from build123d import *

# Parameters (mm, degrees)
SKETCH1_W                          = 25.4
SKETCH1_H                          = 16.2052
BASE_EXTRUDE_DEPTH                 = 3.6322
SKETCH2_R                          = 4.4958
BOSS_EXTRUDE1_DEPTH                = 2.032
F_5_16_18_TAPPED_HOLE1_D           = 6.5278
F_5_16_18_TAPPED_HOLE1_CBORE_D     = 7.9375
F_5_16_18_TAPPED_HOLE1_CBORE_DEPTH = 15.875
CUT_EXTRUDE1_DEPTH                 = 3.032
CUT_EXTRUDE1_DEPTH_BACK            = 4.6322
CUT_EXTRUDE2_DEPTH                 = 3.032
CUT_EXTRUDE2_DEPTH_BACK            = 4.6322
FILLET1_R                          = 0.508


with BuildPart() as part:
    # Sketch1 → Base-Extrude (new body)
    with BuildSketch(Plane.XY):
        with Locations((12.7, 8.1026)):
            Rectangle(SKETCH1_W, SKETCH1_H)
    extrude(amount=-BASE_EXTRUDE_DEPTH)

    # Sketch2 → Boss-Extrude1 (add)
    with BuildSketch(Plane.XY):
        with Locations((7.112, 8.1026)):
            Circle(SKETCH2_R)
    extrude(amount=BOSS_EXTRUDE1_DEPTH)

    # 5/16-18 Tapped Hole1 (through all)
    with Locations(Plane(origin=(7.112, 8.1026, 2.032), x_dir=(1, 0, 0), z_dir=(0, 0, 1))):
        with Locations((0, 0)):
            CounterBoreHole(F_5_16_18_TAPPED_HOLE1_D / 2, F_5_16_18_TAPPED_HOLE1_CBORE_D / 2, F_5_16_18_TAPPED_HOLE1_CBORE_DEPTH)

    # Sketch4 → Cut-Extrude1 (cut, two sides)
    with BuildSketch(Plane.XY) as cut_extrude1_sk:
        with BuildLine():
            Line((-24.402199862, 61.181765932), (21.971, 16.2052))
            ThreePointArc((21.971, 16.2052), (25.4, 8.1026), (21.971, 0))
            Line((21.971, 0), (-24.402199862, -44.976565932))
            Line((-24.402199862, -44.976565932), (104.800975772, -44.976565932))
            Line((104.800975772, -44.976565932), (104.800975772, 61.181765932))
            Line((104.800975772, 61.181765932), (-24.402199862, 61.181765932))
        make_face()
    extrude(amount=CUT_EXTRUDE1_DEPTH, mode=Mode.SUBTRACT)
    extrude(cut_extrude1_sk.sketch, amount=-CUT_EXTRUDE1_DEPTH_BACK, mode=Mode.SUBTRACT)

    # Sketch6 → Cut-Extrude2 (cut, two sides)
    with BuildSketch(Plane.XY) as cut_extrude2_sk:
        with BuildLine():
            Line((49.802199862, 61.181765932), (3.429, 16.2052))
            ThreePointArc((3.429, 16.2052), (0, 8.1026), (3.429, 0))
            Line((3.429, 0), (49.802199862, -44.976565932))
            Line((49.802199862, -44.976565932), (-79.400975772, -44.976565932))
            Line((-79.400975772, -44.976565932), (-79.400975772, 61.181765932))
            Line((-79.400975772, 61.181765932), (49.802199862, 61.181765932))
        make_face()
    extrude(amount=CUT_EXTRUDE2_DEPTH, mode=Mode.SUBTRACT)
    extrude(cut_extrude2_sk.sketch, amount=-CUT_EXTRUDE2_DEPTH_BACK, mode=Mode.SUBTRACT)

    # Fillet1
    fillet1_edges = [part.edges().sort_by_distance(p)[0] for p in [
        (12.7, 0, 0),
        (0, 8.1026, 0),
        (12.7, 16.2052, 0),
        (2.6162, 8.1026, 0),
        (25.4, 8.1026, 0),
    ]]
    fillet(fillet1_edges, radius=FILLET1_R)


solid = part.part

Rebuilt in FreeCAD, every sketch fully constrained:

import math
import FreeCAD as App
import Part
import Sketcher
Q = App.Units.Quantity


def edges_at(feature, points):
    """Names of the edges that pass closest to the given points."""
    edges = feature.Shape.Edges
    near = lambda p: min(range(len(edges)), key=lambda i: edges[i].distToShape(Part.Vertex(*p))[0])
    return sorted({f"Edge{near(p) + 1}" for p in points})

doc = App.newDocument("Part")
body = doc.addObject("PartDesign::Body", "Body")

sketch1 = body.newObject("Sketcher::SketchObject", "Sketch")
sketch1.AttachmentSupport = (doc.getObject("XY_Plane"), [""])
sketch1.MapMode = "FlatFace"
sketch1.addGeometry([
    Part.LineSegment(App.Vector(0, 16.2052, 0), App.Vector(0, 0, 0)),
    Part.LineSegment(App.Vector(0, 0, 0), App.Vector(25.4, 0, 0)),
    Part.LineSegment(App.Vector(25.4, 0, 0), App.Vector(25.4, 16.2052, 0)),
    Part.LineSegment(App.Vector(25.4, 16.2052, 0), App.Vector(0, 16.2052, 0)),
], False)
sketch1.addConstraint([
    Sketcher.Constraint("Coincident", 0, 2, 1, 1),
    Sketcher.Constraint("Coincident", 1, 2, 2, 1),
    Sketcher.Constraint("Coincident", 2, 2, 3, 1),
    Sketcher.Constraint("Coincident", 3, 2, 0, 1),
    Sketcher.Constraint("Vertical", 0),
    Sketcher.Constraint("Horizontal", 1),
    Sketcher.Constraint("Vertical", 2),
    Sketcher.Constraint("Horizontal", 3),
    Sketcher.Constraint("Coincident", 0, 2, -1, 1),
    Sketcher.Constraint("DistanceX", 1, 1, 1, 2, Q("1 in")),
    Sketcher.Constraint("DistanceY", 0, 2, 0, 1, Q("0.638 in")),
])
pad1 = body.newObject("PartDesign::Pad", "Pad")
pad1.Profile = sketch1
pad1.Length = Q("0.143 in")
pad1.Reversed = True

sketch2 = body.newObject("Sketcher::SketchObject", "Sketch001")
sketch2.AttachmentSupport = (doc.getObject("XY_Plane"), [""])
sketch2.MapMode = "FlatFace"
sketch2.addGeometry(Part.Circle(App.Vector(7.112, 8.1026, 0), App.Vector(0, 0, 1), 4.4958), False)
sketch2.addConstraint([
    Sketcher.Constraint("Diameter", 0, Q("0.354 in")),
    Sketcher.Constraint("DistanceX", -1, 1, 0, 3, Q("0.28 in")),
    Sketcher.Constraint("DistanceY", -1, 1, 0, 3, Q("0.319 in")),
])
pad2 = body.newObject("PartDesign::Pad", "Pad001")
pad2.Profile = sketch2
pad2.Length = Q("0.08 in")

sketch3 = body.newObject("Sketcher::SketchObject", "Sketch002")
sketch3.AttachmentSupport = (doc.getObject("XY_Plane"), [""])
sketch3.MapMode = "FlatFace"
sketch3.AttachmentOffset = App.Placement(App.Vector(0, 0, 0.08 * 25.4), App.Rotation())
sketch3.addGeometry(Part.Circle(App.Vector(7.112, 8.1026, 0), App.Vector(0, 0, 1), 3.2639), False)
sketch3.addConstraint([
    Sketcher.Constraint("Diameter", 0, Q("0.257 in")),
    Sketcher.Constraint("DistanceX", -1, 1, 0, 3, Q("0.28 in")),
    Sketcher.Constraint("DistanceY", -1, 1, 0, 3, Q("0.319 in")),
])
doc.recompute()
hole = body.newObject("PartDesign::Hole", "Hole")
hole.Profile = sketch3
hole.ThreadType = "None"
hole.Diameter = Q("0.257 in")
hole.DepthType = "ThroughAll"
hole.HoleCutType = "Counterbore"
hole.HoleCutDiameter = Q("0.3125 in")
hole.HoleCutDepth = Q("0.625 in")

sketch4 = body.newObject("Sketcher::SketchObject", "Sketch003")
sketch4.AttachmentSupport = (doc.getObject("XY_Plane"), [""])
sketch4.MapMode = "FlatFace"
sketch4.addGeometry([
    Part.LineSegment(App.Vector(-24.4022, 61.181766, 0), App.Vector(21.971, 16.2052, 0)),
    Part.ArcOfCircle(Part.Circle(App.Vector(14.112428, 8.1026, 0), App.Vector(0, 0, 1), 11.287572), math.radians(-45.875919), math.radians(45.875919)),
    Part.LineSegment(App.Vector(21.971, 0, 0), App.Vector(-24.4022, -44.976566, 0)),
    Part.LineSegment(App.Vector(-24.4022, -44.976566, 0), App.Vector(104.800976, -44.976566, 0)),
    Part.LineSegment(App.Vector(104.800976, -44.976566, 0), App.Vector(104.800976, 61.181766, 0)),
    Part.LineSegment(App.Vector(104.800976, 61.181766, 0), App.Vector(-24.4022, 61.181766, 0)),
], False)
sketch4.addConstraint([
    Sketcher.Constraint("Tangent", 0, 2, 1, 2),
    Sketcher.Constraint("Tangent", 1, 1, 2, 1),
    Sketcher.Constraint("Coincident", 2, 2, 3, 1),
    Sketcher.Constraint("Coincident", 3, 2, 4, 1),
    Sketcher.Constraint("Coincident", 4, 2, 5, 1),
    Sketcher.Constraint("Coincident", 5, 2, 0, 1),
    Sketcher.Constraint("Horizontal", 3),
    Sketcher.Constraint("Vertical", 4),
    Sketcher.Constraint("Horizontal", 5),
    Sketcher.Constraint("PointOnObject", 1, 1, -1),
    Sketcher.Constraint("Vertical", 0, 2, 1, 1),
    Sketcher.Constraint("Vertical", 2, 2, 5, 2),
    Sketcher.Constraint("DistanceY", -1, 1, 1, 3, Q("0.319 in")),
    Sketcher.Constraint("DistanceX", -1, 1, 0, 2, Q("0.865 in")),
    Sketcher.Constraint("Radius", 1, 11.287572),
    Sketcher.Constraint("DistanceY", 4, 1, 4, 2, 106.158332),
    Sketcher.Constraint("DistanceX", 3, 1, 3, 2, 129.203176),
])
pocket1 = body.newObject("PartDesign::Pocket", "Pocket")
pocket1.Profile = sketch4
pocket1.Type = "ThroughAll"
pocket1.Midplane = True

sketch5 = body.newObject("Sketcher::SketchObject", "Sketch004")
sketch5.AttachmentSupport = (doc.getObject("XY_Plane"), [""])
sketch5.MapMode = "FlatFace"
sketch5.addGeometry([
    Part.LineSegment(App.Vector(3.429, 16.2052, 0), App.Vector(49.8022, 61.181766, 0)),
    Part.LineSegment(App.Vector(49.8022, 61.181766, 0), App.Vector(-79.400976, 61.181766, 0)),
    Part.LineSegment(App.Vector(-79.400976, 61.181766, 0), App.Vector(-79.400976, -44.976566, 0)),
    Part.LineSegment(App.Vector(-79.400976, -44.976566, 0), App.Vector(49.8022, -44.976566, 0)),
    Part.LineSegment(App.Vector(49.8022, -44.976566, 0), App.Vector(3.429, 0, 0)),
    Part.ArcOfCircle(Part.Circle(App.Vector(11.287572, 8.1026, 0), App.Vector(0, 0, 1), 11.287572), math.radians(134.124081), math.radians(225.875919)),
], False)
sketch5.addConstraint([
    Sketcher.Constraint("Coincident", 0, 2, 1, 1),
    Sketcher.Constraint("Coincident", 1, 2, 2, 1),
    Sketcher.Constraint("Coincident", 2, 2, 3, 1),
    Sketcher.Constraint("Coincident", 3, 2, 4, 1),
    Sketcher.Constraint("Tangent", 4, 2, 5, 2),
    Sketcher.Constraint("Tangent", 5, 1, 0, 1),
    Sketcher.Constraint("Horizontal", 1),
    Sketcher.Constraint("Vertical", 2),
    Sketcher.Constraint("Horizontal", 3),
    Sketcher.Constraint("PointOnObject", 4, 2, -1),
    Sketcher.Constraint("Vertical", 0, 2, 3, 2),
    Sketcher.Constraint("Vertical", 4, 2, 5, 1),
    Sketcher.Constraint("DistanceY", -1, 1, 5, 3, Q("0.319 in")),
    Sketcher.Constraint("DistanceX", -1, 1, 4, 2, Q("0.135 in")),
    Sketcher.Constraint("Radius", 5, 11.287572),
    Sketcher.Constraint("DistanceY", 2, 2, 2, 1, 106.158332),
    Sketcher.Constraint("DistanceX", 1, 2, 1, 1, 129.203176),
])
pocket2 = body.newObject("PartDesign::Pocket", "Pocket001")
pocket2.Profile = sketch5
pocket2.Type = "ThroughAll"
pocket2.Midplane = True
doc.recompute()

fillet = body.newObject("PartDesign::Fillet", "Fillet")
fillet.Base = (pocket2, edges_at(pocket2, [
    (12.7, 0, 0),
    (0, 8.103, 0),
    (12.7, 16.205, 0),
    (2.616, 8.103, 0),
    (25.4, 8.103, 0),
]))
fillet.Radius = Q("0.02 in")

doc.recompute()
